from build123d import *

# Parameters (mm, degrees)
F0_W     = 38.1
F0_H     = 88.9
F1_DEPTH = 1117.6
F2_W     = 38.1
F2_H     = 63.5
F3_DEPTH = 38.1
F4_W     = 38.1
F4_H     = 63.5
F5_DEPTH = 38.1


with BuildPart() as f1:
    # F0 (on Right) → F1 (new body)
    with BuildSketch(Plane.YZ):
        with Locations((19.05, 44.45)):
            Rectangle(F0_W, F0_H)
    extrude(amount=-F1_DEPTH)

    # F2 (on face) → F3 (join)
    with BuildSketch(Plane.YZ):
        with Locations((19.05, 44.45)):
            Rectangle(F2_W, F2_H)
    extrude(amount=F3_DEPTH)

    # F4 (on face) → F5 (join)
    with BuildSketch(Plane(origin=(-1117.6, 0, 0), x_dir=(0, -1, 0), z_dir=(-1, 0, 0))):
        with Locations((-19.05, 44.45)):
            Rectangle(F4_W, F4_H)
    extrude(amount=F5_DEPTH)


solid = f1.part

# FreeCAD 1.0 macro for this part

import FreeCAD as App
import Part
import Sketcher

V = App.Vector
Q = App.Units.Quantity


def add_polygon(sketch, points):
    """Adds a closed chain of lines whose ends are joined by coincident constraints."""
    first, n = sketch.GeometryCount, len(points)
    for a, b in zip(points, points[1:] + points[:1]):
        sketch.addGeometry(Part.LineSegment(App.Vector(*a, 0), App.Vector(*b, 0)), False)
    for i in range(n):
        sketch.addConstraint(Sketcher.Constraint("Coincident", first + i, 2, first + (i + 1) % n, 1))

doc = App.newDocument("Part")
body = doc.addObject("PartDesign::Body", "Body")

sketch1 = body.newObject("Sketcher::SketchObject", "Sketch")
sketch1.AttachmentSupport = (doc.getObject("YZ_Plane"), [""])
sketch1.MapMode = "FlatFace"
add_polygon(sketch1, [(0, 89), (0, 0), (38, 0), (38, 89)])
sketch1.addConstraint(Sketcher.Constraint("Vertical", 0))
sketch1.addConstraint(Sketcher.Constraint("Horizontal", 1))
sketch1.addConstraint(Sketcher.Constraint("Vertical", 2))
sketch1.addConstraint(Sketcher.Constraint("Horizontal", 3))
sketch1.addConstraint(Sketcher.Constraint("Coincident", 0, 2, -1, 1))
sketch1.addConstraint(Sketcher.Constraint("DistanceX", 1, 1, 1, 2, Q("1.5 in")))
sketch1.addConstraint(Sketcher.Constraint("DistanceY", 0, 2, 0, 1, Q("3.5 in")))
pad1 = body.newObject("PartDesign::Pad", "Pad")
pad1.Profile = sketch1
pad1.Length = Q("44 in")
pad1.Reversed = True

sketch2 = body.newObject("Sketcher::SketchObject", "Sketch001")
sketch2.AttachmentSupport = (doc.getObject("YZ_Plane"), [""])
sketch2.MapMode = "FlatFace"
add_polygon(sketch2, [(0, 76), (0, 13), (38, 13), (38, 76)])
sketch2.addConstraint(Sketcher.Constraint("Vertical", 0))
sketch2.addConstraint(Sketcher.Constraint("Horizontal", 1))
sketch2.addConstraint(Sketcher.Constraint("Vertical", 2))
sketch2.addConstraint(Sketcher.Constraint("Horizontal", 3))
sketch2.addConstraint(Sketcher.Constraint("PointOnObject", 0, 2, -2))
sketch2.addConstraint(Sketcher.Constraint("DistanceX", 1, 1, 1, 2, Q("1.5 in")))
sketch2.addConstraint(Sketcher.Constraint("DistanceY", 0, 2, 0, 1, Q("2.5 in")))
sketch2.addConstraint(Sketcher.Constraint("DistanceY", -1, 1, 2, 2, Q("3 in")))
pad2 = body.newObject("PartDesign::Pad", "Pad001")
pad2.Profile = sketch2
pad2.Length = Q("1.5 in")

sketch3 = body.newObject("Sketcher::SketchObject", "Sketch002")
sketch3.AttachmentSupport = (doc.getObject("YZ_Plane"), [""])
sketch3.MapMode = "FlatFace"
sketch3.AttachmentOffset = App.Placement(V(0, 0, -44 * 25.4), App.Rotation())
add_polygon(sketch3, [(38, 76), (38, 13), (0, 13), (0, 76)])
sketch3.addConstraint(Sketcher.Constraint("Vertical", 0))
sketch3.addConstraint(Sketcher.Constraint("Horizontal", 1))
sketch3.addConstraint(Sketcher.Constraint("Vertical", 2))
sketch3.addConstraint(Sketcher.Constraint("Horizontal", 3))
sketch3.addConstraint(Sketcher.Constraint("PointOnObject", 1, 2, -2))
sketch3.addConstraint(Sketcher.Constraint("DistanceX", 1, 2, 1, 1, Q("1.5 in")))
sketch3.addConstraint(Sketcher.Constraint("DistanceY", 0, 2, 0, 1, Q("2.5 in")))
sketch3.addConstraint(Sketcher.Constraint("DistanceY", -1, 1, 2, 2, Q("3 in")))
pad3 = body.newObject("PartDesign::Pad", "Pad002")
pad3.Profile = sketch3
pad3.Length = Q("1.5 in")
pad3.Reversed = True

doc.recompute()
